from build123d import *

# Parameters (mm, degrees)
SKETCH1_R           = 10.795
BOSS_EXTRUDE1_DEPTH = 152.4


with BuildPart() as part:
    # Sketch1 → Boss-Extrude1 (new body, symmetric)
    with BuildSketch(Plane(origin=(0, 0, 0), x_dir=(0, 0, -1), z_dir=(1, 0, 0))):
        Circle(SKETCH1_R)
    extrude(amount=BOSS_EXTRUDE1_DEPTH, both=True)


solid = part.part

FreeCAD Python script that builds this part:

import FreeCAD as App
import Part
import Sketcher
from FreeCAD import Vector
Q = App.Units.Quantity

doc = App.newDocument("Part")
body = doc.addObject("PartDesign::Body", "Body")

sketch1 = body.newObject("Sketcher::SketchObject", "Sketch")
sketch1.AttachmentSupport = (doc.getObject("YZ_Plane"), [""])
sketch1.MapMode = "FlatFace"
sketch1.addGeometry(Part.Circle(Vector(0, 0, 0), Vector(0, 0, 1), 11), False)
sketch1.addConstraint(Sketcher.Constraint("Coincident", 0, 3, -1, 1))
sketch1.addConstraint(Sketcher.Constraint("Diameter", 0, Q("0.85 in")))
pad1 = body.newObject("PartDesign::Pad", "Pad")
pad1.Profile = sketch1
pad1.Length = Q("12 in")
pad1.Midplane = True

doc.recompute()
